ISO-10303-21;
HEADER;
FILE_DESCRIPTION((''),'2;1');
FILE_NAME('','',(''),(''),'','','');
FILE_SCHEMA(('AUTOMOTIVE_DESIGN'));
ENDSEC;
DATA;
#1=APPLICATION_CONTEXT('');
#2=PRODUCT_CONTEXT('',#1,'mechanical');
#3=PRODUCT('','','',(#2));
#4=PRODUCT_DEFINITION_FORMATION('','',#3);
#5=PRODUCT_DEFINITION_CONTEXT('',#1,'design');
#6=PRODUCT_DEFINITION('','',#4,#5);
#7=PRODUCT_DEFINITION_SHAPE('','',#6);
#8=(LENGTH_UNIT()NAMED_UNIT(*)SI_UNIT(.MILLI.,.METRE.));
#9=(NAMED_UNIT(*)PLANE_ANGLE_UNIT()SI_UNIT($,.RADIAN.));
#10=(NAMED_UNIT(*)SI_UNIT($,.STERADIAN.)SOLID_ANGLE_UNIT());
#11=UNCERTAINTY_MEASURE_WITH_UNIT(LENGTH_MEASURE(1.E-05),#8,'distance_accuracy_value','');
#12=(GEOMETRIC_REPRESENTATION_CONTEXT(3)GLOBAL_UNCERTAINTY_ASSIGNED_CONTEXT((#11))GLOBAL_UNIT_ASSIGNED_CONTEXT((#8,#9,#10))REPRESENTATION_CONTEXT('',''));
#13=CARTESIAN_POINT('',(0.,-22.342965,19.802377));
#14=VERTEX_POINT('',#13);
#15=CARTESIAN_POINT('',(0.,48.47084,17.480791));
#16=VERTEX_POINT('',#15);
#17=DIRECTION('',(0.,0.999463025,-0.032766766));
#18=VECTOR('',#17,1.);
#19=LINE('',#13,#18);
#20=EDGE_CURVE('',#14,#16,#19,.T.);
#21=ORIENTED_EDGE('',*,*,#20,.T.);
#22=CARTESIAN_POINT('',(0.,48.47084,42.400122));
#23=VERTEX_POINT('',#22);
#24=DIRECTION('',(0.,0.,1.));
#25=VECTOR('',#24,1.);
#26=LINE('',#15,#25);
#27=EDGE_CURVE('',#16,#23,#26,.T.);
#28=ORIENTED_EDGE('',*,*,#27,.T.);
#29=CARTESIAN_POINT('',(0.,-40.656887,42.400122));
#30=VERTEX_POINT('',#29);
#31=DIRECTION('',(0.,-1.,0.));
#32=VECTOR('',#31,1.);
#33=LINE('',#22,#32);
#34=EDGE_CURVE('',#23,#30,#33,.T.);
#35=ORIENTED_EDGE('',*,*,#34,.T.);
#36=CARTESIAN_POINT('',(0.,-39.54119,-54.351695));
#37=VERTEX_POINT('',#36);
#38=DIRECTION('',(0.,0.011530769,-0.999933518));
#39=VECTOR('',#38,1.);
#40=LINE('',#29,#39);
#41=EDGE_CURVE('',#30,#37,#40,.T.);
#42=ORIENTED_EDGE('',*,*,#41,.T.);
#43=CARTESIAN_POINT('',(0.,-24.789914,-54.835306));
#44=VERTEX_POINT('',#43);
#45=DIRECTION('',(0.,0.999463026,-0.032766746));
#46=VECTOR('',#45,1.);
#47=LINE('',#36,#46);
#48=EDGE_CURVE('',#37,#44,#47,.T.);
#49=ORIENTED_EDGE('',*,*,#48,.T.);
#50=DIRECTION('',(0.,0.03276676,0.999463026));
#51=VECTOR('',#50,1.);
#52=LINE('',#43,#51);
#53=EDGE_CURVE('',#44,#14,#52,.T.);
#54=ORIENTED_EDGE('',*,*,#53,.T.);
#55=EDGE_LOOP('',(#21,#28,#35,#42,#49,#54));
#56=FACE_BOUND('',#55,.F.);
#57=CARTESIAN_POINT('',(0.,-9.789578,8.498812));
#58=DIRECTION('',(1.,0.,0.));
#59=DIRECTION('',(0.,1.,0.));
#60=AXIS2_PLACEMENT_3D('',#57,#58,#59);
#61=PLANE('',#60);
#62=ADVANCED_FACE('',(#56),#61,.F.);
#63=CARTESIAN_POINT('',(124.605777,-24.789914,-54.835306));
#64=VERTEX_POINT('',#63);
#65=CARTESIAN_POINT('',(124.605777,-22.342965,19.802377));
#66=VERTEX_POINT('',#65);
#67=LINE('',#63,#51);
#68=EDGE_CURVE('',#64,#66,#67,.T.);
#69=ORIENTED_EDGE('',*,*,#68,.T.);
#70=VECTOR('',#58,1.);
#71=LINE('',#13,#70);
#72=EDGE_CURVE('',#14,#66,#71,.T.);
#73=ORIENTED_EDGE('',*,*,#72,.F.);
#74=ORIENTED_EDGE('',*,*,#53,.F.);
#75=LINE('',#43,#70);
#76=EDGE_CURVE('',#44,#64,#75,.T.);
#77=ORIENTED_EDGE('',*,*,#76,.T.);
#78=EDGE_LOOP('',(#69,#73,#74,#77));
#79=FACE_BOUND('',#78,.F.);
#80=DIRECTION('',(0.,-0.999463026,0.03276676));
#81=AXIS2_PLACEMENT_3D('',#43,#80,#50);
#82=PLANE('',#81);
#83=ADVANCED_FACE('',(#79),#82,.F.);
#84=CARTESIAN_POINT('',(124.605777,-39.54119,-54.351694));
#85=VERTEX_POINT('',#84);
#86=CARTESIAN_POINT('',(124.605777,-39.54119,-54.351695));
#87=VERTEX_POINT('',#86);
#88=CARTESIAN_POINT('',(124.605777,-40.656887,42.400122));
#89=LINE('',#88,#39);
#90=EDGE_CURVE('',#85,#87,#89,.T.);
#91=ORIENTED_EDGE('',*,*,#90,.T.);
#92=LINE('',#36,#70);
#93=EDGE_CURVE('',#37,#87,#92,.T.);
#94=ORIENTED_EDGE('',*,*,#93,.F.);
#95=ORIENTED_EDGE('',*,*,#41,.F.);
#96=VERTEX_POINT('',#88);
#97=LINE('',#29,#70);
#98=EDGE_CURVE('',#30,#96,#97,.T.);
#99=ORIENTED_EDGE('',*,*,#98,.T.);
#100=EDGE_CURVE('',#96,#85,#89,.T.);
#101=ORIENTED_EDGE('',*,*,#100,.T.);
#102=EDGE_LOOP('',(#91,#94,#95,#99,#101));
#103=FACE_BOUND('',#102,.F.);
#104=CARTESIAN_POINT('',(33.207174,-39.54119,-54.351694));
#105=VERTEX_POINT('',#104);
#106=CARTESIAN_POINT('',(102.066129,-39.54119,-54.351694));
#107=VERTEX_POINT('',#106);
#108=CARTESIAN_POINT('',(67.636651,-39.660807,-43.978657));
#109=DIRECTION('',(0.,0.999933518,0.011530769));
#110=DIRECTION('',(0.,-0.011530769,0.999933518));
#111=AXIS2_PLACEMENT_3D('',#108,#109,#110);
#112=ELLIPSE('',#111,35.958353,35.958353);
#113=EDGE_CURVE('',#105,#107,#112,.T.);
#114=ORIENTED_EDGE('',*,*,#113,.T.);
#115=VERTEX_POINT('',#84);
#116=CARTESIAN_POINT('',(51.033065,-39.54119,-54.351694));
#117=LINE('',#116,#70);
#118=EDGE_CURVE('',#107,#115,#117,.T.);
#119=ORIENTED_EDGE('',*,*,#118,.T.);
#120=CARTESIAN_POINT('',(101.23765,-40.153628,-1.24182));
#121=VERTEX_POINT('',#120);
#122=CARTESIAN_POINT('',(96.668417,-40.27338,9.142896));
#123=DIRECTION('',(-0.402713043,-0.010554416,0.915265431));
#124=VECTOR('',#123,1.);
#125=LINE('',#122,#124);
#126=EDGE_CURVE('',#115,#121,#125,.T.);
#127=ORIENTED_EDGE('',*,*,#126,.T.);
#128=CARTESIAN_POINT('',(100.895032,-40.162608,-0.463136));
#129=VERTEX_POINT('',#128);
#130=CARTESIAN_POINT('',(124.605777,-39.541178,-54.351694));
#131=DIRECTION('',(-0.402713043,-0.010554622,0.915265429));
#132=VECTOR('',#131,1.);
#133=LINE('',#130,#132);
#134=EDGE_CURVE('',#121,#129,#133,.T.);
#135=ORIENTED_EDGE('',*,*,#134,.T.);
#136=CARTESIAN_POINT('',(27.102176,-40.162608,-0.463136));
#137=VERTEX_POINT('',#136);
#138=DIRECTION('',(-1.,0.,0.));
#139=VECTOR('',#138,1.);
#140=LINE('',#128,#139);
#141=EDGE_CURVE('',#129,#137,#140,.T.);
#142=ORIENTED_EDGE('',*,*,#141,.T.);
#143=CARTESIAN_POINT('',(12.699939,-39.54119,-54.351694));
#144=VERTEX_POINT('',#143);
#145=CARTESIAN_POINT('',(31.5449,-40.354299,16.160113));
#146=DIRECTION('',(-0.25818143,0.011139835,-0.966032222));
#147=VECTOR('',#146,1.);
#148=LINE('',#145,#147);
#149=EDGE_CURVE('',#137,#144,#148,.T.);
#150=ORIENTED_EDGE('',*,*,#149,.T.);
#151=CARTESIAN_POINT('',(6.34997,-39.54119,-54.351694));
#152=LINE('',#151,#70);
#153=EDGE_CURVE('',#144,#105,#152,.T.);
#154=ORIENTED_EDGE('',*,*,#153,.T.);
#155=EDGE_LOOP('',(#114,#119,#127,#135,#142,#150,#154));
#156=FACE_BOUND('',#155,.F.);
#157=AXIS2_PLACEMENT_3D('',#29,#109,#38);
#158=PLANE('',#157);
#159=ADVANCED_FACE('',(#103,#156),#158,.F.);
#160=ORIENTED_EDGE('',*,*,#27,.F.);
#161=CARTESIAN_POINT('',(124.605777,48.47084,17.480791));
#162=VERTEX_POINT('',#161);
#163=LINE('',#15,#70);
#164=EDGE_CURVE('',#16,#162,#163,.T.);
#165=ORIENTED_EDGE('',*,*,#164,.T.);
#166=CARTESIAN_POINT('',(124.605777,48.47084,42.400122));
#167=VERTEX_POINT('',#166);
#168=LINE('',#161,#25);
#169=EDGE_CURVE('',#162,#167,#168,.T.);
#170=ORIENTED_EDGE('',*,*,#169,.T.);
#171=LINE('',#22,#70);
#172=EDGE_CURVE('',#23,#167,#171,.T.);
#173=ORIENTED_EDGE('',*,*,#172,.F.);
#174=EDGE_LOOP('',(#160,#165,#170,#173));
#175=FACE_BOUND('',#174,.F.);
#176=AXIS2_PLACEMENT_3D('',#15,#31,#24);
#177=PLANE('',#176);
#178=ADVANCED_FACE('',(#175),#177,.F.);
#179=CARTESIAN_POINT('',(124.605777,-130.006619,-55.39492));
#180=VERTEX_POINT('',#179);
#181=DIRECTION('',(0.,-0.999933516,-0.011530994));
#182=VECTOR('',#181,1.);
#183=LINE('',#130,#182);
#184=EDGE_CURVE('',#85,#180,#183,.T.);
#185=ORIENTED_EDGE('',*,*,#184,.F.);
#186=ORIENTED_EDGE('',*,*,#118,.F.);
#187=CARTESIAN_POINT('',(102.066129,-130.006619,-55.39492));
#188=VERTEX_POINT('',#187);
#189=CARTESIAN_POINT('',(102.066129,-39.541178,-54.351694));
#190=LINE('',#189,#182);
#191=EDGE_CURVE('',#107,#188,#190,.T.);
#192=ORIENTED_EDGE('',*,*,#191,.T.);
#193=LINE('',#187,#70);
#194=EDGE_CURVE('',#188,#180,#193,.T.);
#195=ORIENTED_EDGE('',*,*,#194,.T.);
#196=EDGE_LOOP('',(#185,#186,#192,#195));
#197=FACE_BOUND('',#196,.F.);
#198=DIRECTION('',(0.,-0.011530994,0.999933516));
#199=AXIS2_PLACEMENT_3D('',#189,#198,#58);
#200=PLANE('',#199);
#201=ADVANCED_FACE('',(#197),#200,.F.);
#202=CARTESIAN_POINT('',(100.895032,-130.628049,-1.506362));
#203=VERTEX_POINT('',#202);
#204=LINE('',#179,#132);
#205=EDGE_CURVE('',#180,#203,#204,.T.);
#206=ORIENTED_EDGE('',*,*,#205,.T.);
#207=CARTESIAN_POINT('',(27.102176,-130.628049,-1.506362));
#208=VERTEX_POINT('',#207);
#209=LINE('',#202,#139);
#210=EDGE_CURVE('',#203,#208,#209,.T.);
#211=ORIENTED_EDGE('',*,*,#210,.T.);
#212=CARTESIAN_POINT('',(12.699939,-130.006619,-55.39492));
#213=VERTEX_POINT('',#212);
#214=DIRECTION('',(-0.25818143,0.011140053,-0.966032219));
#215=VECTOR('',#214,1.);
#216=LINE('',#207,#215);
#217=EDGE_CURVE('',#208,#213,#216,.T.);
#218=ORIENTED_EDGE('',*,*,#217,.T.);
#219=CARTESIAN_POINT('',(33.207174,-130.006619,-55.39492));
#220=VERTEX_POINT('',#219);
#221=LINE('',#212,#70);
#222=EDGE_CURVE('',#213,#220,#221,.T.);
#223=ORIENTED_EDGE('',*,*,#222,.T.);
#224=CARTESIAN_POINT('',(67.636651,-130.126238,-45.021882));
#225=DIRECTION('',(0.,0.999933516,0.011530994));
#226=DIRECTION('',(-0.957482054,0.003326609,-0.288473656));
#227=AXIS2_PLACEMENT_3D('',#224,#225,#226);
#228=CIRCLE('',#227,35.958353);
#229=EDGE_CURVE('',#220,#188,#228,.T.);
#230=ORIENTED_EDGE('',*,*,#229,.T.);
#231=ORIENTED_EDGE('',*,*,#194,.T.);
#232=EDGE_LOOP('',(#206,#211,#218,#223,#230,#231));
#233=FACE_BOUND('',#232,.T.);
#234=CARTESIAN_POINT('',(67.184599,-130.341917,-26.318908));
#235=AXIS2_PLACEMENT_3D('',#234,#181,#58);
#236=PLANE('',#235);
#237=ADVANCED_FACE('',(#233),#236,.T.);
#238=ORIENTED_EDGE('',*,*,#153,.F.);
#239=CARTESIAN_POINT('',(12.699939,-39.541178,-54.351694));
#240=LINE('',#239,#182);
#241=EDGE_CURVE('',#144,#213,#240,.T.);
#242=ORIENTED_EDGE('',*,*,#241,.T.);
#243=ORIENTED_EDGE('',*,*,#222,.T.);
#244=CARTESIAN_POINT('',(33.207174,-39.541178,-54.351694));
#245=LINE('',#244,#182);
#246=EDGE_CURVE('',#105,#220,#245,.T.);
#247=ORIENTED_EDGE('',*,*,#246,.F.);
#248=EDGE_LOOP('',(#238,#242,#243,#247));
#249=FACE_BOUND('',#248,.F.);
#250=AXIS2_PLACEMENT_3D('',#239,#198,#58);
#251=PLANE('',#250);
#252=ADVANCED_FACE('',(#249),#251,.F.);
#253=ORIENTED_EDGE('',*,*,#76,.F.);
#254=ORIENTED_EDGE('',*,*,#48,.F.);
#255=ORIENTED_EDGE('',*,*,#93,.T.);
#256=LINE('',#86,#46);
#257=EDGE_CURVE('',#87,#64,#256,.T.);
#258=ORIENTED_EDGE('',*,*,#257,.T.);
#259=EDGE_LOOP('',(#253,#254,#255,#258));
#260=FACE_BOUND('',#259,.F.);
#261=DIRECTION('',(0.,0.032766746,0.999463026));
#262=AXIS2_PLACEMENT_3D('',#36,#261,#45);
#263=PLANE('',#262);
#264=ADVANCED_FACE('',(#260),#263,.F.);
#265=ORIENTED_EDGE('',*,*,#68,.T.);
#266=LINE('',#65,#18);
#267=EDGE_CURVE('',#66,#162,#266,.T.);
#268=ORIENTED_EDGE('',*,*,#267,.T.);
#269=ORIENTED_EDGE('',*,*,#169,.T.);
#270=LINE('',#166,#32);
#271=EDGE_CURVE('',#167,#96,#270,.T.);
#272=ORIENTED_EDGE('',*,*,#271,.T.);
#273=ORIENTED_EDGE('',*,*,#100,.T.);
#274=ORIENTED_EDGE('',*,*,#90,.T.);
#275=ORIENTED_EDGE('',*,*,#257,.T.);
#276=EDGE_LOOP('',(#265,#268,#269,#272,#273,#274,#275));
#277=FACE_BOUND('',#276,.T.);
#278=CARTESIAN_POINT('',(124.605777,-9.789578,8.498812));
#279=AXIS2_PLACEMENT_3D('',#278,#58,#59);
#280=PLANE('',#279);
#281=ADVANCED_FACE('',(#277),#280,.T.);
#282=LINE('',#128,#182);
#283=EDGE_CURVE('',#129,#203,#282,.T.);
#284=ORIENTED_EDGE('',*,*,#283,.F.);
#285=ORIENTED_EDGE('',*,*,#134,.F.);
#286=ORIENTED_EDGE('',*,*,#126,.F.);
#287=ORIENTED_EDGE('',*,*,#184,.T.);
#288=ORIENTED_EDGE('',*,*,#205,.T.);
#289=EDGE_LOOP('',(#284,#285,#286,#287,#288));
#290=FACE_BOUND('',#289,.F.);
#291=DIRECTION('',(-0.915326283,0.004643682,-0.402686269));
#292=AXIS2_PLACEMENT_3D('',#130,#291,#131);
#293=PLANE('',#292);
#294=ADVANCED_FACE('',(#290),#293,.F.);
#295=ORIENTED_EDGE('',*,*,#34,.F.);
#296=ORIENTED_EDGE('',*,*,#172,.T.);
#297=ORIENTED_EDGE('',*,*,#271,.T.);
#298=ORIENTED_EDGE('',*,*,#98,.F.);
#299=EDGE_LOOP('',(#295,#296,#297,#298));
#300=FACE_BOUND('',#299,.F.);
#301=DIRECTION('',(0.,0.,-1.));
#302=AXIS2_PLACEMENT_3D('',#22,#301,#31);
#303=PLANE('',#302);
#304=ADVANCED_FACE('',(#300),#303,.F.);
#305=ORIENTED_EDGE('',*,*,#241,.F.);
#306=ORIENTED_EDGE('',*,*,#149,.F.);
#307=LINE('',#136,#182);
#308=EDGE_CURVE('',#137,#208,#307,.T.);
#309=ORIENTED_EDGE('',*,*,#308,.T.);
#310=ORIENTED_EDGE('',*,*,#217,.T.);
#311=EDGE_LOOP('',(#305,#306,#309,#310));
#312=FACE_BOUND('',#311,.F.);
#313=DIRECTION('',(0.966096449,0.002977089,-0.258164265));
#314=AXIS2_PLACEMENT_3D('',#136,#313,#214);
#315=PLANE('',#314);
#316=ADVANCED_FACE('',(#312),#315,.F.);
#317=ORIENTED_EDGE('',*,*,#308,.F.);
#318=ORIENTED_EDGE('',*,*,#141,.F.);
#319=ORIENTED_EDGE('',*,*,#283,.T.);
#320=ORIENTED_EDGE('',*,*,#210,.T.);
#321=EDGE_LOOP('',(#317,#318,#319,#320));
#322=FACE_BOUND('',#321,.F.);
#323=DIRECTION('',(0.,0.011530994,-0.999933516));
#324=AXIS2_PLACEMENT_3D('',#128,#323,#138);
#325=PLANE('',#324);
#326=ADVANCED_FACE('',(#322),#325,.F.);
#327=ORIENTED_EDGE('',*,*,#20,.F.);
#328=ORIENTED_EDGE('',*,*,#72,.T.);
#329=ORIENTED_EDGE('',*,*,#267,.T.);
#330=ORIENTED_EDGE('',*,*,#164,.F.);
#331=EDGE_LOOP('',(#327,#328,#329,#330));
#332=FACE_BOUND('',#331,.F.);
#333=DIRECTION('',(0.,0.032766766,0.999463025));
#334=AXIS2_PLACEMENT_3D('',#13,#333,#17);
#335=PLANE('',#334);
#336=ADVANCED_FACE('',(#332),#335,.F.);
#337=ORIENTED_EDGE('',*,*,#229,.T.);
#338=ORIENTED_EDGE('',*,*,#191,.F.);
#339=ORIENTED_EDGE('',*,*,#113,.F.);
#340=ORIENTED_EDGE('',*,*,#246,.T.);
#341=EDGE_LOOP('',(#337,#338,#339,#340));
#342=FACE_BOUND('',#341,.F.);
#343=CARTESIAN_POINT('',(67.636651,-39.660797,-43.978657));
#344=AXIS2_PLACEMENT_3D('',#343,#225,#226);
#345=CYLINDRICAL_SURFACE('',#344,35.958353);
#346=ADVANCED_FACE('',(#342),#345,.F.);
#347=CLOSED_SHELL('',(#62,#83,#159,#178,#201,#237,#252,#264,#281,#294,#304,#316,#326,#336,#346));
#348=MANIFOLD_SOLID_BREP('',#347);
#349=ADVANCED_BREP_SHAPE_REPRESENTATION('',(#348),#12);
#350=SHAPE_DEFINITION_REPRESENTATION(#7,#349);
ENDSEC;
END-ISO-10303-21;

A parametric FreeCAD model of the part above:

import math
import FreeCAD as App
import Part
import Sketcher
from FreeCAD import Vector
Q = App.Units.Quantity

doc = App.newDocument("Part")
body = doc.addObject("PartDesign::Body", "Body")

sketch1 = doc.addObject("Sketcher::SketchObject", "Sketch")
body.addObject(sketch1)
sketch1.AttachmentSupport = (doc.YZ_Plane, [""])
sketch1.MapMode = "FlatFace"
sketch1.addGeometry([
    Part.LineSegment(Vector(48.47084, 42.400122, 0), Vector(-40.656887, 42.400122, 0)),
    Part.LineSegment(Vector(-40.656887, 42.400122, 0), Vector(-39.54119, -54.351695, 0)),
    Part.LineSegment(Vector(-39.54119, -54.351695, 0), Vector(-24.789914, -54.835306, 0)),
    Part.LineSegment(Vector(-24.789914, -54.835306, 0), Vector(-22.342965, 19.802377, 0)),
    Part.LineSegment(Vector(-22.342965, 19.802377, 0), Vector(48.47084, 17.480791, 0)),
    Part.LineSegment(Vector(48.47084, 17.480791, 0), Vector(48.47084, 42.400122, 0)),
], False)
sketch1.addConstraint([
    Sketcher.Constraint("Coincident", 0, 2, 1, 1),
    Sketcher.Constraint("Coincident", 1, 2, 2, 1),
    Sketcher.Constraint("Coincident", 2, 2, 3, 1),
    Sketcher.Constraint("Coincident", 3, 2, 4, 1),
    Sketcher.Constraint("Coincident", 4, 2, 5, 1),
    Sketcher.Constraint("Coincident", 5, 2, 0, 1),
    Sketcher.Constraint("Horizontal", 0),
    Sketcher.Constraint("Vertical", 5),
    Sketcher.Constraint("Perpendicular", 2, 3),
    Sketcher.Constraint("Perpendicular", 3, 4),
    Sketcher.Constraint("Distance", 2, Q("14.759201 mm")),
    Sketcher.Constraint("DistanceY", 5, 1, 5, 2, Q("24.919331 mm")),
    Sketcher.Constraint("Distance", 1, Q("96.75825 mm")),
    Sketcher.Constraint("Distance", 4, Q("70.851851 mm")),
    Sketcher.Constraint("DistanceX", 0, 2, 0, 1, Q("89.127727 mm")),
    Sketcher.Constraint("DistanceX", 1, 2, -1, 1, Q("39.54119 mm")),
    Sketcher.Constraint("DistanceX", -1, 1, 4, 2, Q("48.47084 mm")),
    Sketcher.Constraint("DistanceY", -1, 1, 4, 2, Q("17.480791 mm")),
])
pad1 = doc.addObject("PartDesign::Pad", "Pad")
body.addObject(pad1)
pad1.Profile = sketch1
pad1.Length = 124.605777

sketch2 = doc.addObject("Sketcher::SketchObject", "Sketch001")
body.addObject(sketch2)
sketch2.Placement = App.Placement(Vector(0, -40.162608, -0.463136), App.Rotation(Vector(1, 0, 0), Vector(0, -0.011530994, 0.999933516), Vector(0, -0.999933516, -0.011530994), "ZXY"))
sketch2.addGeometry([
    Part.ArcOfCircle(Part.Circle(Vector(67.636651, -43.518414, 0), Vector(0, 0, 1), 35.958353), math.radians(-16.767746), math.radians(196.767746)),
    Part.LineSegment(Vector(102.066129, -53.892141, 0), Vector(124.605777, -53.892141, 0)),
    Part.LineSegment(Vector(124.605777, -53.892141, 0), Vector(100.895032, 0, 0)),
    Part.LineSegment(Vector(100.895032, 0, 0), Vector(27.102176, 0, 0)),
    Part.LineSegment(Vector(27.102176, 0, 0), Vector(12.699939, -53.892141, 0)),
    Part.LineSegment(Vector(12.699939, -53.892141, 0), Vector(33.207174, -53.892141, 0)),
], False)
sketch2.addConstraint([
    Sketcher.Constraint("Coincident", 0, 1, 1, 1),
    Sketcher.Constraint("Coincident", 1, 2, 2, 1),
    Sketcher.Constraint("Coincident", 2, 2, 3, 1),
    Sketcher.Constraint("Coincident", 3, 2, 4, 1),
    Sketcher.Constraint("Coincident", 4, 2, 5, 1),
    Sketcher.Constraint("Coincident", 5, 2, 0, 2),
    Sketcher.Constraint("Horizontal", 1),
    Sketcher.Constraint("Horizontal", 3),
    Sketcher.Constraint("Horizontal", 5),
    Sketcher.Constraint("PointOnObject", 2, 2, -1),
    Sketcher.Constraint("Horizontal", 1, 2, 4, 2),
    Sketcher.Constraint("Radius", 0, Q("35.958353 mm")),
    Sketcher.Constraint("DistanceX", 3, 2, 5, 2, Q("6.104998 mm")),
    Sketcher.Constraint("DistanceX", 3, 2, 1, 2, Q("97.503601 mm")),
    Sketcher.Constraint("Distance", 2, Q("58.877519 mm")),
    Sketcher.Constraint("DistanceX", 1, 1, 1, 2, Q("22.539648 mm")),
    Sketcher.Constraint("DistanceX", 3, 2, 3, 1, Q("73.792856 mm")),
    Sketcher.Constraint("DistanceX", 5, 1, 5, 2, Q("20.507235 mm")),
    Sketcher.Constraint("DistanceX", -1, 1, 0, 3, Q("67.636651 mm")),
])
pad2 = doc.addObject("PartDesign::Pad", "Pad001")
body.addObject(pad2)
pad2.Profile = sketch2
pad2.Length = 90.471456

doc.recompute()
